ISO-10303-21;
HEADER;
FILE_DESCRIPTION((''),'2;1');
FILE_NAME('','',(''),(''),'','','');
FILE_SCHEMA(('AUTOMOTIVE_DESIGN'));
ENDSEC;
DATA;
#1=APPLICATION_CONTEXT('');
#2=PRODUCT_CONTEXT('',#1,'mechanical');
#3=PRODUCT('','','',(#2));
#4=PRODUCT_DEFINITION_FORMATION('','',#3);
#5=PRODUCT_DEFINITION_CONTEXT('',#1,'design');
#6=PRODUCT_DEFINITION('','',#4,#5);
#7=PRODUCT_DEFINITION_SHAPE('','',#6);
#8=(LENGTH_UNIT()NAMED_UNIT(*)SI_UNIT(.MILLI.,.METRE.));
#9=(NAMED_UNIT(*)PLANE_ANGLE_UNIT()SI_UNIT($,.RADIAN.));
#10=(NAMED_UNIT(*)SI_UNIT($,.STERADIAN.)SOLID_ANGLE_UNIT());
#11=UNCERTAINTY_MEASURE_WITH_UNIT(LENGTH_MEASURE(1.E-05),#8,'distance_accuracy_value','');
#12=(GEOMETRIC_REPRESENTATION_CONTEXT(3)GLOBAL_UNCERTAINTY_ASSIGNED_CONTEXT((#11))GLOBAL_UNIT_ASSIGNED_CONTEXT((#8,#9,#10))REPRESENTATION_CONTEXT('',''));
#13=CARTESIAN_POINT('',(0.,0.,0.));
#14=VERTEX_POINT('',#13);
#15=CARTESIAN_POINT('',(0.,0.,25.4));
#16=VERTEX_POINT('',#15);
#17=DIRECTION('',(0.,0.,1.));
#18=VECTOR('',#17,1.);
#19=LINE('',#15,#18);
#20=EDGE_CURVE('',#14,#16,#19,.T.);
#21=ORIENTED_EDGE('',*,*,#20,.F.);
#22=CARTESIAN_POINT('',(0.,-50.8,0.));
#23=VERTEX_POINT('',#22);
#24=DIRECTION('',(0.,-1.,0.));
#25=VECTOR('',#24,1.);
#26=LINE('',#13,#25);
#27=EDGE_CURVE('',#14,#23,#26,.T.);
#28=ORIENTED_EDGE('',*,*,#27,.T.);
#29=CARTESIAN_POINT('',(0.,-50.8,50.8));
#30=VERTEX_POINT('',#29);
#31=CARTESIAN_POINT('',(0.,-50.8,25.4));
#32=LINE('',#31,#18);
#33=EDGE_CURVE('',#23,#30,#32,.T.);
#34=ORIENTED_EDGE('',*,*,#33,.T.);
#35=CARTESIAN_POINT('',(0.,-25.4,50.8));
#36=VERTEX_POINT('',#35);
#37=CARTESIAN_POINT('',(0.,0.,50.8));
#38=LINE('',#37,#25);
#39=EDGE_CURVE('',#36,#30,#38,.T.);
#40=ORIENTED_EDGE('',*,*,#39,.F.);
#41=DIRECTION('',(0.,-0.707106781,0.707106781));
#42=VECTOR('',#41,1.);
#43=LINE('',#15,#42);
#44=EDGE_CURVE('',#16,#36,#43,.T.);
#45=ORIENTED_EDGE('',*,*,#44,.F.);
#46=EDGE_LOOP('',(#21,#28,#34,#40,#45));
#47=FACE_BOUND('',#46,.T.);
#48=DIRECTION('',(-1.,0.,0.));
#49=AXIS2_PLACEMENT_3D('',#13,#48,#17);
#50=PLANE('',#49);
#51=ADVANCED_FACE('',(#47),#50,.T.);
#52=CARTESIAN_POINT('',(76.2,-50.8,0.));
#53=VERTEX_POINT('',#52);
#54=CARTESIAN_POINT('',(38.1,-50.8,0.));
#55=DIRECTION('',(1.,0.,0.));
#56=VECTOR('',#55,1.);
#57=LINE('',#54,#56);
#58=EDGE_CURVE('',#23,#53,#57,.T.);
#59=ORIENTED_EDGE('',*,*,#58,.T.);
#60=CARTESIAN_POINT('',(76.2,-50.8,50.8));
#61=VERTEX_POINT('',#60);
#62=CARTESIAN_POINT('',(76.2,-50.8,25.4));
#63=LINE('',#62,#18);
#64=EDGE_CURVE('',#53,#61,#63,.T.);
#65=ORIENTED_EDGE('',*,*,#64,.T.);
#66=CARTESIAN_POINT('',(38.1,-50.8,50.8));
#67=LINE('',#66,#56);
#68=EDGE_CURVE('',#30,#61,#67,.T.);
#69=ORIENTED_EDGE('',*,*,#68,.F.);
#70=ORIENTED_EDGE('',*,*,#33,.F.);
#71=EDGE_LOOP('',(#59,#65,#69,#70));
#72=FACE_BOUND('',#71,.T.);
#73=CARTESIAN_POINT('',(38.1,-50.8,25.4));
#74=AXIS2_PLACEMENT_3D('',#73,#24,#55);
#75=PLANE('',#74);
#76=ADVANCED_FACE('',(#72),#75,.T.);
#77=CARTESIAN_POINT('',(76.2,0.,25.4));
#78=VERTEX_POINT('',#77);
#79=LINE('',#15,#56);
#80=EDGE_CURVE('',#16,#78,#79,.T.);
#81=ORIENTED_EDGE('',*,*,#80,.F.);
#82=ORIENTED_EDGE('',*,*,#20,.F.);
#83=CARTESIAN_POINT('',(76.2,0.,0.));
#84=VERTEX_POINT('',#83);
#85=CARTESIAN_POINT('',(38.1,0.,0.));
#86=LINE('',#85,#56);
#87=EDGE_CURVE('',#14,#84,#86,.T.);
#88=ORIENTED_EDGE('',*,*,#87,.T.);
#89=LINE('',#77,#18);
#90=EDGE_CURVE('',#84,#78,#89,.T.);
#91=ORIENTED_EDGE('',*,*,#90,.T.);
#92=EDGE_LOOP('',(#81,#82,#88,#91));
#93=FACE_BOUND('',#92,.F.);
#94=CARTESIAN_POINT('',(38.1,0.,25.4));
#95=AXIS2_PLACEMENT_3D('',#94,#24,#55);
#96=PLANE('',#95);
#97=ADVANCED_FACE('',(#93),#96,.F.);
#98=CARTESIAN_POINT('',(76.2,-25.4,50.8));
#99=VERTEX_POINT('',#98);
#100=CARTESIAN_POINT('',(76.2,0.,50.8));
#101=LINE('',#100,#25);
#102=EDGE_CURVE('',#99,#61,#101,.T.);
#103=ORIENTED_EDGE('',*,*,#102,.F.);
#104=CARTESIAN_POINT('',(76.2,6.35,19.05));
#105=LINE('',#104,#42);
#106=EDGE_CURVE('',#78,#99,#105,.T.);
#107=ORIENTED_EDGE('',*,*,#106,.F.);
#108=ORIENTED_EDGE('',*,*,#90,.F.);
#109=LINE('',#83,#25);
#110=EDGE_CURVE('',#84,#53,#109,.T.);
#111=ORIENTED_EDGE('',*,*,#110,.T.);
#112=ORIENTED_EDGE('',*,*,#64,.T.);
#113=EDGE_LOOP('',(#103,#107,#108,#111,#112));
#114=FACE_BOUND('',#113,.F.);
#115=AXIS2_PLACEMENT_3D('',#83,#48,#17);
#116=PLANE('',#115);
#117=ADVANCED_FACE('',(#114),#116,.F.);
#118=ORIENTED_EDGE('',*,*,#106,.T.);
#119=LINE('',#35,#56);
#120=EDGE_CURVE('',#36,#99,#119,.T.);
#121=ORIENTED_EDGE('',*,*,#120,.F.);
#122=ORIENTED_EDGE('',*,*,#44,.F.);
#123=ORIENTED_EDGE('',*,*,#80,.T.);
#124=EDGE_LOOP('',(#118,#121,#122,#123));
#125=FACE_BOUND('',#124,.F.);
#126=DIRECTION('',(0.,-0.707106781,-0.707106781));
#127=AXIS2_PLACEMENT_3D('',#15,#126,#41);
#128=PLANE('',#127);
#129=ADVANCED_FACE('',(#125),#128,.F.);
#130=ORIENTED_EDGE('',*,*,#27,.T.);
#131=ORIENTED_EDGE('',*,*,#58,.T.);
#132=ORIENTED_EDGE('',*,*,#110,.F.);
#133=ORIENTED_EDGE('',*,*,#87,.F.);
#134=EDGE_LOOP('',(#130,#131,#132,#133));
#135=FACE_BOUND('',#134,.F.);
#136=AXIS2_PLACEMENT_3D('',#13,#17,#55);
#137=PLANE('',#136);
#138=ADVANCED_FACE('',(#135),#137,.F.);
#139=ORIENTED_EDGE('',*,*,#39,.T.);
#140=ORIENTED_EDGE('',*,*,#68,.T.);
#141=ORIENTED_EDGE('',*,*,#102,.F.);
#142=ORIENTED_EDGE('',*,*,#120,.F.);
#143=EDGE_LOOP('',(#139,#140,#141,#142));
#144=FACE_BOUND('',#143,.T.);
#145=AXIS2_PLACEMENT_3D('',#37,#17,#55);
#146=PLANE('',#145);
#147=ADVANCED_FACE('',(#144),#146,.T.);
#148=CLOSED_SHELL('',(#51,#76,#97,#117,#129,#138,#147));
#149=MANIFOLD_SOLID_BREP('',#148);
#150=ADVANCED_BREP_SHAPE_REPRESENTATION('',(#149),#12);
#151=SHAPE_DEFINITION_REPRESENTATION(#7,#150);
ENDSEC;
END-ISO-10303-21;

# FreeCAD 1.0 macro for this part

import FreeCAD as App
import Part
import Sketcher
from FreeCAD import Vector
Q = App.Units.Quantity


def add_polygon(sketch, points):
    """Adds a closed chain of lines whose ends are joined by coincident constraints."""
    first, n = sketch.GeometryCount, len(points)
    for a, b in zip(points, points[1:] + points[:1]):
        sketch.addGeometry(Part.LineSegment(App.Vector(*a, 0), App.Vector(*b, 0)), False)
    for i in range(n):
        sketch.addConstraint(Sketcher.Constraint("Coincident", first + i, 2, first + (i + 1) % n, 1))

doc = App.newDocument("Part")
body = doc.addObject("PartDesign::Body", "Body")

# Sketch on XZ plane
sketch1 = body.newObject("Sketcher::SketchObject", "Sketch")
sketch1.AttachmentSupport = (doc.getObject("XZ_Plane"), [""])
sketch1.MapMode = "FlatFace"
add_polygon(sketch1, [(0, 50.8), (0, 0), (76.2, 0), (76.2, 50.8)])  # lines 0-3
sketch1.addConstraint([
    Sketcher.Constraint("Vertical", 0),
    Sketcher.Constraint("Horizontal", 1),
    Sketcher.Constraint("Vertical", 2),
    Sketcher.Constraint("Horizontal", 3),
    Sketcher.Constraint("Coincident", 0, 2, -1, 1),
    Sketcher.Constraint("DistanceX", 1, 1, 1, 2, Q("3 in")),
    Sketcher.Constraint("DistanceY", 0, 2, 0, 1, Q("2 in")),
])
pad1 = body.newObject("PartDesign::Pad", "Pad")
pad1.Profile = sketch1
pad1.Length = Q("2 in")

# Sketch on YZ plane
sketch2 = body.newObject("Sketcher::SketchObject", "Sketch001")
sketch2.AttachmentSupport = (doc.getObject("YZ_Plane"), [""])
sketch2.MapMode = "FlatFace"
add_polygon(sketch2, [(0, 50.8), (0, 25.4), (-25.4, 50.8)])  # lines 0-2
sketch2.addConstraint([
    Sketcher.Constraint("Vertical", 0),
    Sketcher.Constraint("Horizontal", 2),
    Sketcher.Constraint("PointOnObject", 0, 2, -2),
    Sketcher.Constraint("Equal", 2, 0),
    Sketcher.Constraint("DistanceX", 2, 1, 2, 2, Q("1 in")),
    Sketcher.Constraint("DistanceY", -1, 1, 0, 2, Q("1 in")),
])
pocket1 = body.newObject("PartDesign::Pocket", "Pocket")
pocket1.Profile = sketch2
pocket1.Type = "ThroughAll"
pocket1.Reversed = True

doc.recompute()
